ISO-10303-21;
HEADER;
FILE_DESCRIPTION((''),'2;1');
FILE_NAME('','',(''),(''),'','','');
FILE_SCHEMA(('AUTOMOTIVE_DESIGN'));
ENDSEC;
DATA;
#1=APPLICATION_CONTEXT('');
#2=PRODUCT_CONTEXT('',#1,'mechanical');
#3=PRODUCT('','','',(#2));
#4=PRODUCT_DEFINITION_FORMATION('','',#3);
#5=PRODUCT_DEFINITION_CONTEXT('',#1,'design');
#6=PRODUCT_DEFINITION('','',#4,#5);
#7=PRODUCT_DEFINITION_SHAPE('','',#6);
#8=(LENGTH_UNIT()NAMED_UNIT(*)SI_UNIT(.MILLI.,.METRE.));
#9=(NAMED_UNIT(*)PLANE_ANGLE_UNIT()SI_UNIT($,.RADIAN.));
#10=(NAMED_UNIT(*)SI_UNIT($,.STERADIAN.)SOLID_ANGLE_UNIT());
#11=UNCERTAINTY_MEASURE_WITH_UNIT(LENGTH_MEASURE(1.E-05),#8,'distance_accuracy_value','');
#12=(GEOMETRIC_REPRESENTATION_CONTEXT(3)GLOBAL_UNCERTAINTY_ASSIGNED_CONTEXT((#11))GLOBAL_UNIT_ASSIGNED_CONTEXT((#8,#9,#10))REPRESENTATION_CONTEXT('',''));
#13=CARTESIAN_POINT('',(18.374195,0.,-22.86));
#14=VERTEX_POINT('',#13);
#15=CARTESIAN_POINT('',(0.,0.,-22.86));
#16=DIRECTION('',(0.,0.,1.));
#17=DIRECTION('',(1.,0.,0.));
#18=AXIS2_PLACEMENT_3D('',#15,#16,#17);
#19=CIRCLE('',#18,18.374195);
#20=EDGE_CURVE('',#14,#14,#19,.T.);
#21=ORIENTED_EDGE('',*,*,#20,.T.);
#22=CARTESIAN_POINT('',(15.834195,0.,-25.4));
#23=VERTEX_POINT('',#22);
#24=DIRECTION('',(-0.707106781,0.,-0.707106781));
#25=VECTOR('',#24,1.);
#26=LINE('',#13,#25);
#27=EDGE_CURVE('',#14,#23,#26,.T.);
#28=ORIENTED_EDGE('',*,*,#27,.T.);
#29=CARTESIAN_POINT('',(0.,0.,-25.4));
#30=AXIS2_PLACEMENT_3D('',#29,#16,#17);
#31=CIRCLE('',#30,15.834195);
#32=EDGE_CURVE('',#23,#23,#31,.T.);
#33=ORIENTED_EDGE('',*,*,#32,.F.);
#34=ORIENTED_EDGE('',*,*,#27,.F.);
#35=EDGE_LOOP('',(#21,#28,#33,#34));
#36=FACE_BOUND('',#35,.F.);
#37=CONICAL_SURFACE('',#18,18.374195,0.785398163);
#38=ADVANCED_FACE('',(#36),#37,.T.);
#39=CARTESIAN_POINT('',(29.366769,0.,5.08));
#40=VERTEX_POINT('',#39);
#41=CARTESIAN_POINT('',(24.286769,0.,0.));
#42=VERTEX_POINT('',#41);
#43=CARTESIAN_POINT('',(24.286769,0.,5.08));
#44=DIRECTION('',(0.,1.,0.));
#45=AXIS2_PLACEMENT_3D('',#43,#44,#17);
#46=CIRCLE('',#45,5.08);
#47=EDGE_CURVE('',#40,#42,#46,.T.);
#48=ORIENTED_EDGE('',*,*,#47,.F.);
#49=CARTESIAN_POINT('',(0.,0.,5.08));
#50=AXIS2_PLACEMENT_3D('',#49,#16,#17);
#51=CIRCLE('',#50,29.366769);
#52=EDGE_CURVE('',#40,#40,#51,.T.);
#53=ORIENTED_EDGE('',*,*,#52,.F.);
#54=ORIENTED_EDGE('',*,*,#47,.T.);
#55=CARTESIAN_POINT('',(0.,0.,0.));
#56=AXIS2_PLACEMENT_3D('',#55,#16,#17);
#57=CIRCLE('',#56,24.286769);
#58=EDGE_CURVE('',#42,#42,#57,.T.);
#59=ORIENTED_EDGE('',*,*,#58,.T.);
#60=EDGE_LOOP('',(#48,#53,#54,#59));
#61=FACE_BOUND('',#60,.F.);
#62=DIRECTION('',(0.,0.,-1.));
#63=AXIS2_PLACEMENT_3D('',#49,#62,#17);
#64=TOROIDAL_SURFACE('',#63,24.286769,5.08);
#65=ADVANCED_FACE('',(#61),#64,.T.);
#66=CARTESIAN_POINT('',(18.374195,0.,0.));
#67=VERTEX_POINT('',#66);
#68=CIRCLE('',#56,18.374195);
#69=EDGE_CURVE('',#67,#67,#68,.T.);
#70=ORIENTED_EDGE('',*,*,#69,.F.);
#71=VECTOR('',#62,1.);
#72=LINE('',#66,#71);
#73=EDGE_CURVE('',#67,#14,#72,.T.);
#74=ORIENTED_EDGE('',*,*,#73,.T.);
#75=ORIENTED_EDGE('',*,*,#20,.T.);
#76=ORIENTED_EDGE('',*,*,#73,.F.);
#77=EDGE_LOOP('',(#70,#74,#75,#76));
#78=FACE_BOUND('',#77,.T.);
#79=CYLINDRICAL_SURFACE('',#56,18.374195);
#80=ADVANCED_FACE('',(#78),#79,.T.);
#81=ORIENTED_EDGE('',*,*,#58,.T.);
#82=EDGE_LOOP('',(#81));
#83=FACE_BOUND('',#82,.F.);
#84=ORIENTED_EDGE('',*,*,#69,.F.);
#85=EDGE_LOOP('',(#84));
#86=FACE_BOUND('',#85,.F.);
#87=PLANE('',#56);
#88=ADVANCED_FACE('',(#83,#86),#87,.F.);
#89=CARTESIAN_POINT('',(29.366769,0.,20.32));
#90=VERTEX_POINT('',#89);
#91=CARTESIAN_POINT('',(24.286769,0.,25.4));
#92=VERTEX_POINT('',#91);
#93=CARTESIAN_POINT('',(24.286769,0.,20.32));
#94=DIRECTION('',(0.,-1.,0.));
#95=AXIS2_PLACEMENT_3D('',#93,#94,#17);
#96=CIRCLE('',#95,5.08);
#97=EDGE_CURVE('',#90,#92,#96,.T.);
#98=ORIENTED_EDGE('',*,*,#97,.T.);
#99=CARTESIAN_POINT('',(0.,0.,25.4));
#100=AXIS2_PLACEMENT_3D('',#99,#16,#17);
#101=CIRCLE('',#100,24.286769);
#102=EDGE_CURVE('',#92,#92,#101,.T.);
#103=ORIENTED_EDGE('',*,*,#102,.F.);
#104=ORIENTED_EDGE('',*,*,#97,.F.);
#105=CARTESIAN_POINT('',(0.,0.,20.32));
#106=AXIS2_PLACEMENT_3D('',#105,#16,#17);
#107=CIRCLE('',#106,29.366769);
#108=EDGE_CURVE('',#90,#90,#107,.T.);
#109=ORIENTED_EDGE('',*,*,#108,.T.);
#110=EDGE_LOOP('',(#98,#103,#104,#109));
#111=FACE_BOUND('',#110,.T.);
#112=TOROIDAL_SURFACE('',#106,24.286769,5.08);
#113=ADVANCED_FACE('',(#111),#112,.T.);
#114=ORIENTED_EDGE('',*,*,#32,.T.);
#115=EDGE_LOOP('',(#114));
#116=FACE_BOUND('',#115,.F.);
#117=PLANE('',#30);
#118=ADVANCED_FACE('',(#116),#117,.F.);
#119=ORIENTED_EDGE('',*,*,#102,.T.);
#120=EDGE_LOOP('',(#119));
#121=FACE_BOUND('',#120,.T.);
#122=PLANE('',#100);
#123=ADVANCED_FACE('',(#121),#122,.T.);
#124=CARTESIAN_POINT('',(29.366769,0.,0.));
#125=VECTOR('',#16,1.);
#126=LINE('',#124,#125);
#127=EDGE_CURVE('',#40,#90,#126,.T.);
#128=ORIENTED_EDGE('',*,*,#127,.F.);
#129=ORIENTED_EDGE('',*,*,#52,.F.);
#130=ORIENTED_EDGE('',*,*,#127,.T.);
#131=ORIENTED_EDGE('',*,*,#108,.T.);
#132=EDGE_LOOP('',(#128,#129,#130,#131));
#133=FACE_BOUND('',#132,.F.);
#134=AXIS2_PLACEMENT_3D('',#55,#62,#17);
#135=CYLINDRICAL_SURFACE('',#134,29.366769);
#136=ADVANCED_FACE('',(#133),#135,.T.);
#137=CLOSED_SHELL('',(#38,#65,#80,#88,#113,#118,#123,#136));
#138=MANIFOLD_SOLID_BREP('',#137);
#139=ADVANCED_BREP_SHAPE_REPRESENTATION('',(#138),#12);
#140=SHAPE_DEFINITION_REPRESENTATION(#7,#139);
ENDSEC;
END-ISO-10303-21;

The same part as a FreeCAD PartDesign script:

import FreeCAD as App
import Part
import Sketcher
Q = App.Units.Quantity


def edges_at(feature, points):
    """Names of the edges that pass closest to the given points."""
    edges = feature.Shape.Edges
    near = lambda p: min(range(len(edges)), key=lambda i: edges[i].distToShape(Part.Vertex(*p))[0])
    return sorted({f"Edge{near(p) + 1}" for p in points})

doc = App.newDocument("Part")
body = doc.addObject("PartDesign::Body", "Body")

sketch1 = doc.addObject("Sketcher::SketchObject", "Sketch")
body.addObject(sketch1)
sketch1.AttachmentSupport = (doc.XY_Plane, [""])
sketch1.MapMode = "FlatFace"
sketch1.addGeometry(Part.Circle(App.Vector(0, 0, 0), App.Vector(0, 0, 1), 18), False)
sketch1.addConstraint(Sketcher.Constraint("Coincident", 0, 3, -1, 1))
sketch1.addConstraint(Sketcher.Constraint("Diameter", 0, 36.74839))
pad1 = doc.addObject("PartDesign::Pad", "Pad")
body.addObject(pad1)
pad1.Profile = sketch1
pad1.Length = Q("1 in")
pad1.Reversed = True

sketch2 = doc.addObject("Sketcher::SketchObject", "Sketch001")
body.addObject(sketch2)
sketch2.AttachmentSupport = (doc.XY_Plane, [""])
sketch2.MapMode = "FlatFace"
sketch2.addGeometry(Part.Circle(App.Vector(0, 0, 0), App.Vector(0, 0, 1), 29), False)
sketch2.addConstraint(Sketcher.Constraint("Coincident", 0, 3, -1, 1))
sketch2.addConstraint(Sketcher.Constraint("Diameter", 0, 58.733538))
pad2 = doc.addObject("PartDesign::Pad", "Pad001")
body.addObject(pad2)
pad2.Profile = sketch2
pad2.Length = Q("1 in")
doc.recompute()

fillet = doc.addObject("PartDesign::Fillet", "Fillet")
body.addObject(fillet)
fillet.Base = (pad2, edges_at(pad2, [(-29.367, 0, 25.4)]))
fillet.Radius = Q("0.2 in")
doc.recompute()

fillet2 = doc.addObject("PartDesign::Fillet", "Fillet001")
body.addObject(fillet2)
fillet2.Base = (fillet, edges_at(fillet, [(-29.367, 0, 0)]))
fillet2.Radius = Q("0.2 in")
doc.recompute()

chamfer = doc.addObject("PartDesign::Chamfer", "Chamfer")
body.addObject(chamfer)
chamfer.Base = (fillet2, edges_at(fillet2, [(-18.374, 0, -25.4)]))
chamfer.Size = Q("0.1 in")

doc.recompute()
